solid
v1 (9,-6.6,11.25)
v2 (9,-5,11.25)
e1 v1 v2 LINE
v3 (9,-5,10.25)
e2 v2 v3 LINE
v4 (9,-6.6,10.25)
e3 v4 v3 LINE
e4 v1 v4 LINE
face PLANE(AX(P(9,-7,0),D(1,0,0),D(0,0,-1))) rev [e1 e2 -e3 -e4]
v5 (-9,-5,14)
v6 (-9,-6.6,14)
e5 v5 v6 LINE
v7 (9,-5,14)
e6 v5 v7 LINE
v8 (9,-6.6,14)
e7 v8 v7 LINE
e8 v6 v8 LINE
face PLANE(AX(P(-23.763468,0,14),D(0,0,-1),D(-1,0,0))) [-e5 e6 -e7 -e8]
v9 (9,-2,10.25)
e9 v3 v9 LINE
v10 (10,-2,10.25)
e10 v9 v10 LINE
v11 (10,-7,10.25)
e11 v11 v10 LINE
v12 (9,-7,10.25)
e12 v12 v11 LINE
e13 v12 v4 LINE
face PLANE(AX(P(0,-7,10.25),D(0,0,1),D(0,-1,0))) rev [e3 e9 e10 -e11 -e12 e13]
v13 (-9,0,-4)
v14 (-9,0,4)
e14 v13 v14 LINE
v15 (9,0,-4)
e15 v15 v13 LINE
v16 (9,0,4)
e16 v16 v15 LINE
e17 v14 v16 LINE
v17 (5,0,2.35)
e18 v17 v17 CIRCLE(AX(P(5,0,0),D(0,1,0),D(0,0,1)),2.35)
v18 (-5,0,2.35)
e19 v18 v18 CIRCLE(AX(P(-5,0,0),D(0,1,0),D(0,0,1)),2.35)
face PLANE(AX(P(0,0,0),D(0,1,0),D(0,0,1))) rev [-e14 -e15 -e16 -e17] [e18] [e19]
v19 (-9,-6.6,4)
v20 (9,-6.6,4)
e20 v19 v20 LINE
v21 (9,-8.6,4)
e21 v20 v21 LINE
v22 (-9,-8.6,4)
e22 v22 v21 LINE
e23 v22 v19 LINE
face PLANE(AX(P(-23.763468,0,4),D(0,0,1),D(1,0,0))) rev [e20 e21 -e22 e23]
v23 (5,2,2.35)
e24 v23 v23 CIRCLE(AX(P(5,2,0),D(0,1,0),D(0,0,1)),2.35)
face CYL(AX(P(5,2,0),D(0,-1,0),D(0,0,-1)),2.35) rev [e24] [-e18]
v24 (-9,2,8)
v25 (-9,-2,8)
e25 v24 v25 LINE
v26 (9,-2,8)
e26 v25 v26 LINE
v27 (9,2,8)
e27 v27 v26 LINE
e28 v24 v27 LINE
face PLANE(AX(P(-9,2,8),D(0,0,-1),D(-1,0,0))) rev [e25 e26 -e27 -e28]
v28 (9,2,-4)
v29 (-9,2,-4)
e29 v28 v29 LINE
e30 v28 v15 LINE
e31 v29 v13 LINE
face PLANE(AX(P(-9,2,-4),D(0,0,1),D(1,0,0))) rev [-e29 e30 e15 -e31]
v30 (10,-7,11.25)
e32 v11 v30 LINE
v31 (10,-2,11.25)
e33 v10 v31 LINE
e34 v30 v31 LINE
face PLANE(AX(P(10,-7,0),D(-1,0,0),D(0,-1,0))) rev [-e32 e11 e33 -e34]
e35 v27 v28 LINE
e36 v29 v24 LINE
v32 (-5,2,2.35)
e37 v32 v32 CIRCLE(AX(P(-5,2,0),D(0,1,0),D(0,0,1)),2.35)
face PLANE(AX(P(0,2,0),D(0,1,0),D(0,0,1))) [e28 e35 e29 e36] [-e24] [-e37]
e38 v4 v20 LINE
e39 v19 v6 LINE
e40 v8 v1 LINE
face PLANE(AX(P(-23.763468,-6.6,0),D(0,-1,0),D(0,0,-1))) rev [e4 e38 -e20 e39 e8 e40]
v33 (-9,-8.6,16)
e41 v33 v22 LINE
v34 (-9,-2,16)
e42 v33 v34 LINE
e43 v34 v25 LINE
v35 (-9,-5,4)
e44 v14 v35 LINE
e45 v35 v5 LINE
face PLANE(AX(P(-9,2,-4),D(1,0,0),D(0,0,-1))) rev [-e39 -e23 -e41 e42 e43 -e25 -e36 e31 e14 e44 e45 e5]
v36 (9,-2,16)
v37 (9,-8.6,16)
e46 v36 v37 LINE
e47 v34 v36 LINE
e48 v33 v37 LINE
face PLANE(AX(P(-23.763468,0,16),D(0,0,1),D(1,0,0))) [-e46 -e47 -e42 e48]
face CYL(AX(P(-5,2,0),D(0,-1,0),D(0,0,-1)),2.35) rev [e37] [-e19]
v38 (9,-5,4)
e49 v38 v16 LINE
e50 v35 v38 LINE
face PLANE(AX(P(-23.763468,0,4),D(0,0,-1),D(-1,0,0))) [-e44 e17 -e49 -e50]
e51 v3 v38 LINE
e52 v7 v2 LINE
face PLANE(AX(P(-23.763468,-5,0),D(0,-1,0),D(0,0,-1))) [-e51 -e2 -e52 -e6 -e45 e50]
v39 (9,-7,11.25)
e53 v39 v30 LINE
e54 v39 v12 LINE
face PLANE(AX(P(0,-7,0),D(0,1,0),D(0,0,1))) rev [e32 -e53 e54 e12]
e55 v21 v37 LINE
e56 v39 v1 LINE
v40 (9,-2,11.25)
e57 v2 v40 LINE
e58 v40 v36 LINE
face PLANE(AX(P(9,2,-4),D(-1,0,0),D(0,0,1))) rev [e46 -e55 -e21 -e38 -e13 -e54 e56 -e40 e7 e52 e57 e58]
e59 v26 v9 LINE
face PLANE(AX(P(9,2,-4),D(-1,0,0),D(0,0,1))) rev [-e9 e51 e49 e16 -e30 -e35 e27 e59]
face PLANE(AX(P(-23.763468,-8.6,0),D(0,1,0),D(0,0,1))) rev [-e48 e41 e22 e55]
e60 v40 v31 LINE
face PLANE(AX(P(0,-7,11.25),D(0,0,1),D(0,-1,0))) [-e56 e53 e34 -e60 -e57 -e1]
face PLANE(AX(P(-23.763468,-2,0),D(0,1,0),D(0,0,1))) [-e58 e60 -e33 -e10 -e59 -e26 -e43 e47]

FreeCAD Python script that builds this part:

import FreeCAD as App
import Part
import Sketcher
from FreeCAD import Vector

doc = App.newDocument("Part")
params = doc.addObject("Spreadsheet::Sheet", "Params")
for row, (alias, value) in enumerate([
    ("sketch1_diameter", "4.7 mm"),
    ("sketch1_width", "18 mm"),
    ("sketch1_height", "12 mm"),
    ("pad1_length", "2 mm"),
    ("sketch2_width", "2 mm"),
    ("sketch2_width2", "5 mm"),
    ("sketch2_height", "4 mm"),
    ("sketch2_height2", "8 mm"),
    ("sketch2_height3", "10 mm"),
    ("pad2_length", "18 mm"),
    ("sketch3_width", "1 mm"),
    ("pad3_length", "5 mm"),
], start=1):
    params.set(f"A{row}", alias)
    params.set(f"B{row}", "=" + value)
    params.setAlias(f"B{row}", alias)

body = doc.addObject("PartDesign::Body", "Body")

# Sketch on XZ plane
sketch1 = body.newObject("Sketcher::SketchObject", "Sketch")
sketch1.AttachmentSupport = (doc.getObject("XZ_Plane"), [""])
sketch1.MapMode = "FlatFace"
sketch1.addGeometry([
    Part.LineSegment(Vector(-9, -4, 0), Vector(-9, 8, 0)),  # 0
    Part.LineSegment(Vector(-9, 8, 0), Vector(9, 8, 0)),  # 1
    Part.LineSegment(Vector(9, 8, 0), Vector(9, -4, 0)),  # 2
    Part.LineSegment(Vector(9, -4, 0), Vector(-9, -4, 0)),  # 3
    Part.Circle(Vector(-5, 0, 0), Vector(0, 0, 1), 2.35),  # 4
    Part.Circle(Vector(5, 0, 0), Vector(0, 0, 1), 2.35),  # 5
], False)
sketch1.addConstraint([
    Sketcher.Constraint("Coincident", 0, 2, 1, 1),
    Sketcher.Constraint("Coincident", 1, 2, 2, 1),
    Sketcher.Constraint("Coincident", 2, 2, 3, 1),
    Sketcher.Constraint("Coincident", 3, 2, 0, 1),
    Sketcher.Constraint("Vertical", 0),
    Sketcher.Constraint("Horizontal", 1),
    Sketcher.Constraint("Vertical", 2),
    Sketcher.Constraint("Horizontal", 3),
    Sketcher.Constraint("Equal", 4, 5),
    Sketcher.Constraint("Symmetric", 4, 3, 5, 3, -1, 1),
    Sketcher.Constraint("PointOnObject", 4, 3, -1),
    Sketcher.Constraint("Diameter", 4, 4.7),
    Sketcher.Constraint("DistanceX", 1, 1, 1, 2, 18.0),
    Sketcher.Constraint("DistanceY", 0, 1, 0, 2, 12.0),
    Sketcher.Constraint("DistanceX", 4, 3, -1, 1, 5.0),
    Sketcher.Constraint("DistanceX", 0, 2, -1, 1, 9.0),
    Sketcher.Constraint("DistanceY", -1, 1, 0, 2, 8.0),
])
sketch1.setExpression("Constraints[11]", "Params.sketch1_diameter")
sketch1.setExpression("Constraints[12]", "Params.sketch1_width")
sketch1.setExpression("Constraints[13]", "Params.sketch1_height")
pad1 = body.newObject("PartDesign::Pad", "Pad")
pad1.Profile = sketch1
pad1.setExpression("Length", "Params.pad1_length")
pad1.Reversed = True

# Sketch on YZ plane
sketch2 = body.newObject("Sketcher::SketchObject", "Sketch001")
sketch2.AttachmentSupport = (doc.getObject("YZ_Plane"), [""])
sketch2.MapMode = "FlatFace"
sketch2.AttachmentOffset = App.Placement(Vector(0, 0, 9), App.Rotation())
sketch2.addGeometry([
    Part.LineSegment(Vector(0, 4, 0), Vector(0, 8, 0)),  # 0
    Part.LineSegment(Vector(0, 8, 0), Vector(-2, 8, 0)),  # 1
    Part.LineSegment(Vector(-2, 8, 0), Vector(-2, 16, 0)),  # 2
    Part.LineSegment(Vector(-2, 16, 0), Vector(-8.6, 16, 0)),  # 3
    Part.LineSegment(Vector(-8.6, 16, 0), Vector(-8.6, 4, 0)),  # 4
    Part.LineSegment(Vector(-8.6, 4, 0), Vector(-6.6, 4, 0)),  # 5
    Part.LineSegment(Vector(-6.6, 4, 0), Vector(-6.6, 14, 0)),  # 6
    Part.LineSegment(Vector(-6.6, 14, 0), Vector(-5, 14, 0)),  # 7
    Part.LineSegment(Vector(-5, 14, 0), Vector(-5, 4, 0)),  # 8
    Part.LineSegment(Vector(-5, 4, 0), Vector(0, 4, 0)),  # 9
], False)
sketch2.addConstraint([
    Sketcher.Constraint("Coincident", 0, 2, 1, 1),
    Sketcher.Constraint("Coincident", 1, 2, 2, 1),
    Sketcher.Constraint("Coincident", 2, 2, 3, 1),
    Sketcher.Constraint("Coincident", 3, 2, 4, 1),
    Sketcher.Constraint("Coincident", 4, 2, 5, 1),
    Sketcher.Constraint("Coincident", 5, 2, 6, 1),
    Sketcher.Constraint("Coincident", 6, 2, 7, 1),
    Sketcher.Constraint("Coincident", 7, 2, 8, 1),
    Sketcher.Constraint("Coincident", 8, 2, 9, 1),
    Sketcher.Constraint("Coincident", 9, 2, 0, 1),
    Sketcher.Constraint("Vertical", 0),
    Sketcher.Constraint("Horizontal", 1),
    Sketcher.Constraint("Vertical", 2),
    Sketcher.Constraint("Horizontal", 3),
    Sketcher.Constraint("Vertical", 4),
    Sketcher.Constraint("Horizontal", 5),
    Sketcher.Constraint("Vertical", 6),
    Sketcher.Constraint("Horizontal", 7),
    Sketcher.Constraint("Vertical", 8),
    Sketcher.Constraint("Horizontal", 9),
    Sketcher.Constraint("PointOnObject", 0, 2, -2),
    Sketcher.Constraint("Horizontal", 5, 2, 8, 2),
    Sketcher.Constraint("Equal", 1, 5),
    Sketcher.Constraint("DistanceX", 1, 2, 1, 1, 2.0),
    Sketcher.Constraint("DistanceX", 9, 1, 9, 2, 5.0),
    Sketcher.Constraint("DistanceY", 0, 1, 0, 2, 4.0),
    Sketcher.Constraint("DistanceY", 2, 1, 2, 2, 8.0),
    Sketcher.Constraint("DistanceY", 6, 1, 6, 2, 10.0),
    Sketcher.Constraint("DistanceX", 3, 2, 3, 1, 6.6),
    Sketcher.Constraint("DistanceY", -1, 1, 0, 2, 8.0),
])
sketch2.setExpression("Constraints[23]", "Params.sketch2_width")
sketch2.setExpression("Constraints[24]", "Params.sketch2_width2")
sketch2.setExpression("Constraints[25]", "Params.sketch2_height")
sketch2.setExpression("Constraints[26]", "Params.sketch2_height2")
sketch2.setExpression("Constraints[27]", "Params.sketch2_height3")
pad2 = body.newObject("PartDesign::Pad", "Pad001")
pad2.Profile = sketch2
pad2.setExpression("Length", "Params.pad2_length")
pad2.Reversed = True

# Sketch on XZ plane
sketch3 = body.newObject("Sketcher::SketchObject", "Sketch002")
sketch3.AttachmentSupport = (doc.getObject("XZ_Plane"), [""])
sketch3.MapMode = "FlatFace"
sketch3.AttachmentOffset = App.Placement(Vector(0, 0, 2), App.Rotation())
sketch3.addGeometry([
    Part.LineSegment(Vector(9, 10.25, 0), Vector(9, 11.25, 0)),
    Part.LineSegment(Vector(9, 11.25, 0), Vector(10, 11.25, 0)),
    Part.LineSegment(Vector(10, 11.25, 0), Vector(10, 10.25, 0)),
    Part.LineSegment(Vector(10, 10.25, 0), Vector(9, 10.25, 0)),
], False)
sketch3.addConstraint([
    Sketcher.Constraint("Coincident", 0, 2, 1, 1),
    Sketcher.Constraint("Coincident", 1, 2, 2, 1),
    Sketcher.Constraint("Coincident", 2, 2, 3, 1),
    Sketcher.Constraint("Coincident", 3, 2, 0, 1),
    Sketcher.Constraint("Vertical", 0),
    Sketcher.Constraint("Horizontal", 1),
    Sketcher.Constraint("Vertical", 2),
    Sketcher.Constraint("Horizontal", 3),
    Sketcher.Constraint("Equal", 3, 0),
    Sketcher.Constraint("DistanceX", 1, 1, 1, 2, 1.0),
    Sketcher.Constraint("DistanceX", -1, 1, 0, 2, 9.0),
    Sketcher.Constraint("DistanceY", -1, 1, 0, 2, 11.25),
])
sketch3.setExpression("Constraints[9]", "Params.sketch3_width")
pad3 = body.newObject("PartDesign::Pad", "Pad002")
pad3.Profile = sketch3
pad3.setExpression("Length", "Params.pad3_length")

doc.recompute()
